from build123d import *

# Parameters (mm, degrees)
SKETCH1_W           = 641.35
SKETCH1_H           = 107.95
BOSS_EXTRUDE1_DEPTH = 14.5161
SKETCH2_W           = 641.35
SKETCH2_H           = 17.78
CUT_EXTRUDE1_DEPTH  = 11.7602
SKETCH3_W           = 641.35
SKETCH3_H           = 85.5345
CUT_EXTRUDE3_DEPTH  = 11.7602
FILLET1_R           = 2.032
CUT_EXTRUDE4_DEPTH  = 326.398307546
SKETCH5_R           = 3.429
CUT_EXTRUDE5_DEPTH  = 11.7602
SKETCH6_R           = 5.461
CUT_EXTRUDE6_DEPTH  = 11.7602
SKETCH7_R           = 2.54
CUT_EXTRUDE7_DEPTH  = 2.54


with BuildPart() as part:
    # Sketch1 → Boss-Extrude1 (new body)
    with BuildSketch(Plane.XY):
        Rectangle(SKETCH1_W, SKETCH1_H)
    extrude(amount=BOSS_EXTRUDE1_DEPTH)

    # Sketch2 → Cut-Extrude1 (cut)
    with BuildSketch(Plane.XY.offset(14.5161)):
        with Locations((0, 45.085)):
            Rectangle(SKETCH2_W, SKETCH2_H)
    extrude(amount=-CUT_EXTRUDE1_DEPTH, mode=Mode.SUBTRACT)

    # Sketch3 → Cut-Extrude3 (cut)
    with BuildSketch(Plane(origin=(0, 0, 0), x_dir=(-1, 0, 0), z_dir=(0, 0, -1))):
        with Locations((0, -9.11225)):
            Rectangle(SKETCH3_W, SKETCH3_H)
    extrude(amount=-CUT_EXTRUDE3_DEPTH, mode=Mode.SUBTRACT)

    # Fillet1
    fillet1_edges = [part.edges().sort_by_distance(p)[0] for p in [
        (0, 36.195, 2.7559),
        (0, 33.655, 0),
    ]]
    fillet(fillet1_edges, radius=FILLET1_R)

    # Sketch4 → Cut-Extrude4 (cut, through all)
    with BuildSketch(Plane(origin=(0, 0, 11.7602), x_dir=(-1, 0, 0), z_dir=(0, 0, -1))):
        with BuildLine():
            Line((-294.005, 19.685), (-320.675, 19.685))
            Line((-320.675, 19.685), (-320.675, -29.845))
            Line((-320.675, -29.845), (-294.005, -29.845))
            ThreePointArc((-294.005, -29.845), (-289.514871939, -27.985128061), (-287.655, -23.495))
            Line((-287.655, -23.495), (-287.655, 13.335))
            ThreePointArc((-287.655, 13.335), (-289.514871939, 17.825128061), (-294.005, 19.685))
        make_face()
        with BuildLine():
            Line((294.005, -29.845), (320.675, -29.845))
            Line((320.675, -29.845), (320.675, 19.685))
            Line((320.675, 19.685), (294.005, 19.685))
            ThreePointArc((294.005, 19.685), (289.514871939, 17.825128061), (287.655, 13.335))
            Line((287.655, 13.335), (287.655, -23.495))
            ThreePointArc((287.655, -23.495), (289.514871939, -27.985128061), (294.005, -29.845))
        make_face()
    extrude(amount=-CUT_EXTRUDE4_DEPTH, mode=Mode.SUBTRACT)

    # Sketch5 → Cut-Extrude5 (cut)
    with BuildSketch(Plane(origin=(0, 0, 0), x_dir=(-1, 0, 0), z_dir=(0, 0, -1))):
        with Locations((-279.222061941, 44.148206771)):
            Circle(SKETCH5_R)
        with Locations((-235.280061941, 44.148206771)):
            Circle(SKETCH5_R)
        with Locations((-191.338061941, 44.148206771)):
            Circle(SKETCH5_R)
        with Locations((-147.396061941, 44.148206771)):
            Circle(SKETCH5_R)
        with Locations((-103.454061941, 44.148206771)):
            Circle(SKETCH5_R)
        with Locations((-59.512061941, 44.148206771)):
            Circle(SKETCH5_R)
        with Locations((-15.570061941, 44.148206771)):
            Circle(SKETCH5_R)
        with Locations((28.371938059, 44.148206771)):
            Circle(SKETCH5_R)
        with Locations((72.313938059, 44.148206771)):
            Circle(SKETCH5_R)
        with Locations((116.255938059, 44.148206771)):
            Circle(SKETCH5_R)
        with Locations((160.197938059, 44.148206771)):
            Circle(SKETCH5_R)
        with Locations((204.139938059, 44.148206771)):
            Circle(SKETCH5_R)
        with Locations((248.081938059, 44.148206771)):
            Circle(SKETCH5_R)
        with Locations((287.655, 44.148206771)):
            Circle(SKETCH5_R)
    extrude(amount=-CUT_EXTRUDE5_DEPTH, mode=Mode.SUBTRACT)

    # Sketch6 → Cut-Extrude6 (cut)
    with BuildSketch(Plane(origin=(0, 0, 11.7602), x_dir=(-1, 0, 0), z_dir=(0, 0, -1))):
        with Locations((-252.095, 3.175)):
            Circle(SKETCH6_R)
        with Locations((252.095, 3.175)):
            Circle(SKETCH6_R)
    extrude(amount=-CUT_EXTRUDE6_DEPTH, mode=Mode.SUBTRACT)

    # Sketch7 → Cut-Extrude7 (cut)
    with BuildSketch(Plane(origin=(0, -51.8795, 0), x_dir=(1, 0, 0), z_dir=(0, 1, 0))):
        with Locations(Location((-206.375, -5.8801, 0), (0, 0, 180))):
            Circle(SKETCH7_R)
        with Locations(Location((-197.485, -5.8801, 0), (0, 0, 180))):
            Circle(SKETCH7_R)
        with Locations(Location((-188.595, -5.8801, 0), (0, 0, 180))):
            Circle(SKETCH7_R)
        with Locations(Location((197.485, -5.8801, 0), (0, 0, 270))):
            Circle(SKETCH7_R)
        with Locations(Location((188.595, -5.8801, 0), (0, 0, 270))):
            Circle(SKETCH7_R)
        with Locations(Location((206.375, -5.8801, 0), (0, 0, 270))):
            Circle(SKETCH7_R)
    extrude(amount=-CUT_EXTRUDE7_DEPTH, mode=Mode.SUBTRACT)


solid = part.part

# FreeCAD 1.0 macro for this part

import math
import FreeCAD as App
import Part
import Sketcher
Q = App.Units.Quantity


def edges_at(feature, points):
    """Names of the edges that pass closest to the given points."""
    edges = feature.Shape.Edges
    near = lambda p: min(range(len(edges)), key=lambda i: edges[i].distToShape(Part.Vertex(*p))[0])
    return sorted({f"Edge{near(p) + 1}" for p in points})

doc = App.newDocument("Part")
params = doc.addObject("Spreadsheet::Sheet", "Params")
for row, (alias, value) in enumerate([
    ("sketch1_width", "25.25 in"),
    ("sketch1_height", "4.25 in"),
    ("pad1_length", "0.5715 in"),
    ("sketch2_height", "0.7 in"),
    ("sketch2_width", "25.25 in"),
    ("pocket1_length", "0.463 in"),
    ("sketch3_width", "25.25 in"),
    ("pocket2_length", "0.463 in"),
    ("fillet_radius", "0.08 in"),
    ("sketch4_radius", "0.25 in"),
    ("sketch4_width", "1.05 in"),
    ("sketch4_height", "1.95 in"),
    ("sketch5_diameter", "0.27 in"),
    ("pocket4_length", "0.463 in"),
    ("sketch6_diameter", "0.43 in"),
    ("pocket5_length", "0.463 in"),
    ("sketch7_diameter", "0.2 in"),
    ("pocket6_length", "0.1 in"),
], start=1):
    params.set(f"A{row}", alias)
    params.set(f"B{row}", "=" + value)
    params.setAlias(f"B{row}", alias)

body = doc.addObject("PartDesign::Body", "Body")

sketch1 = doc.addObject("Sketcher::SketchObject", "Sketch")
body.addObject(sketch1)
sketch1.AttachmentSupport = (doc.XY_Plane, [""])
sketch1.MapMode = "FlatFace"
sketch1.addGeometry([
    Part.LineSegment(App.Vector(-321, 54, 0), App.Vector(-321, -54, 0)),
    Part.LineSegment(App.Vector(-321, -54, 0), App.Vector(321, -54, 0)),
    Part.LineSegment(App.Vector(321, -54, 0), App.Vector(321, 54, 0)),
    Part.LineSegment(App.Vector(321, 54, 0), App.Vector(-321, 54, 0)),
], False)
sketch1.addConstraint([
    Sketcher.Constraint("Coincident", 0, 2, 1, 1),
    Sketcher.Constraint("Coincident", 1, 2, 2, 1),
    Sketcher.Constraint("Coincident", 2, 2, 3, 1),
    Sketcher.Constraint("Coincident", 3, 2, 0, 1),
    Sketcher.Constraint("Vertical", 0),
    Sketcher.Constraint("Horizontal", 1),
    Sketcher.Constraint("Vertical", 2),
    Sketcher.Constraint("Horizontal", 3),
    Sketcher.Constraint("Symmetric", 0, 2, 2, 2, -1, 1),
    Sketcher.Constraint("DistanceX", 1, 1, 1, 2, Q("25.25 in")),
    Sketcher.Constraint("DistanceY", 0, 2, 0, 1, Q("4.25 in")),
])
sketch1.setExpression("Constraints[9]", "Params.sketch1_width")
sketch1.setExpression("Constraints[10]", "Params.sketch1_height")
pad1 = doc.addObject("PartDesign::Pad", "Pad")
body.addObject(pad1)
pad1.Profile = sketch1
pad1.setExpression("Length", "Params.pad1_length")

sketch2 = doc.addObject("Sketcher::SketchObject", "Sketch001")
body.addObject(sketch2)
sketch2.AttachmentSupport = (doc.XY_Plane, [""])
sketch2.MapMode = "FlatFace"
sketch2.AttachmentOffset = App.Placement(App.Vector(0, 0, 0.5715 * 25.4), App.Rotation())
sketch2.addGeometry([
    Part.LineSegment(App.Vector(-321, 54, 0), App.Vector(-321, 36, 0)),
    Part.LineSegment(App.Vector(-321, 36, 0), App.Vector(321, 36, 0)),
    Part.LineSegment(App.Vector(321, 36, 0), App.Vector(321, 54, 0)),
    Part.LineSegment(App.Vector(321, 54, 0), App.Vector(-321, 54, 0)),
], False)
sketch2.addConstraint([
    Sketcher.Constraint("Coincident", 0, 2, 1, 1),
    Sketcher.Constraint("Coincident", 1, 2, 2, 1),
    Sketcher.Constraint("Coincident", 2, 2, 3, 1),
    Sketcher.Constraint("Coincident", 3, 2, 0, 1),
    Sketcher.Constraint("Vertical", 0),
    Sketcher.Constraint("Horizontal", 1),
    Sketcher.Constraint("Vertical", 2),
    Sketcher.Constraint("Horizontal", 3),
    Sketcher.Constraint("DistanceY", 0, 2, 0, 1, Q("0.7 in")),
    Sketcher.Constraint("DistanceX", 1, 1, 1, 2, Q("25.25 in")),
    Sketcher.Constraint("DistanceX", 0, 2, -1, 1, Q("12.625 in")),
    Sketcher.Constraint("DistanceY", -1, 1, 0, 2, Q("1.425 in")),
])
sketch2.setExpression("Constraints[8]", "Params.sketch2_height")
sketch2.setExpression("Constraints[9]", "Params.sketch2_width")
pocket1 = doc.addObject("PartDesign::Pocket", "Pocket")
body.addObject(pocket1)
pocket1.Profile = sketch2
pocket1.setExpression("Length", "Params.pocket1_length")

sketch3 = doc.addObject("Sketcher::SketchObject", "Sketch002")
body.addObject(sketch3)
sketch3.AttachmentSupport = (doc.XY_Plane, [""])
sketch3.MapMode = "FlatFace"
sketch3.addGeometry([
    Part.LineSegment(App.Vector(321, 34, 0), App.Vector(321, -52, 0)),
    Part.LineSegment(App.Vector(321, -52, 0), App.Vector(-321, -52, 0)),
    Part.LineSegment(App.Vector(-321, -52, 0), App.Vector(-321, 34, 0)),
    Part.LineSegment(App.Vector(-321, 34, 0), App.Vector(321, 34, 0)),
], False)
sketch3.addConstraint([
    Sketcher.Constraint("Coincident", 0, 2, 1, 1),
    Sketcher.Constraint("Coincident", 1, 2, 2, 1),
    Sketcher.Constraint("Coincident", 2, 2, 3, 1),
    Sketcher.Constraint("Coincident", 3, 2, 0, 1),
    Sketcher.Constraint("Vertical", 0),
    Sketcher.Constraint("Horizontal", 1),
    Sketcher.Constraint("Vertical", 2),
    Sketcher.Constraint("Horizontal", 3),
    Sketcher.Constraint("DistanceX", 1, 2, 1, 1, Q("25.25 in")),
    Sketcher.Constraint("DistanceY", 0, 2, 0, 1, Q("3.3675 in")),
    Sketcher.Constraint("DistanceX", -1, 1, 0, 2, Q("12.625 in")),
    Sketcher.Constraint("DistanceY", -1, 1, 2, 2, Q("1.325 in")),
])
sketch3.setExpression("Constraints[8]", "Params.sketch3_width")
pocket2 = doc.addObject("PartDesign::Pocket", "Pocket001")
body.addObject(pocket2)
pocket2.Profile = sketch3
pocket2.setExpression("Length", "Params.pocket2_length")
pocket2.Reversed = True
doc.recompute()

fillet = doc.addObject("PartDesign::Fillet", "Fillet")
body.addObject(fillet)
fillet.Base = (pocket2, edges_at(pocket2, [(0, 36.195, 2.756), (0, 33.655, 0)]))
fillet.setExpression("Radius", "Params.fillet_radius")

sketch4 = doc.addObject("Sketcher::SketchObject", "Sketch003")
body.addObject(sketch4)
sketch4.AttachmentSupport = (doc.XY_Plane, [""])
sketch4.MapMode = "FlatFace"
sketch4.AttachmentOffset = App.Placement(App.Vector(0, 0, 0.463 * 25.4), App.Rotation())
sketch4.addGeometry([
    Part.LineSegment(App.Vector(294, 20, 0), App.Vector(321, 20, 0)),
    Part.LineSegment(App.Vector(321, 20, 0), App.Vector(321, -30, 0)),
    Part.LineSegment(App.Vector(321, -30, 0), App.Vector(294, -30, 0)),
    Part.ArcOfCircle(Part.Circle(App.Vector(294, -23, 0), App.Vector(0, 0, 1), 6), math.radians(180), math.radians(270)),
    Part.LineSegment(App.Vector(288, -23, 0), App.Vector(288, 13, 0)),
    Part.ArcOfCircle(Part.Circle(App.Vector(294, 13, 0), App.Vector(0, 0, 1), 6), math.radians(90), math.radians(180)),
    Part.LineSegment(App.Vector(-294, -30, 0), App.Vector(-321, -30, 0)),
    Part.LineSegment(App.Vector(-321, -30, 0), App.Vector(-321, 20, 0)),
    Part.LineSegment(App.Vector(-321, 20, 0), App.Vector(-294, 20, 0)),
    Part.ArcOfCircle(Part.Circle(App.Vector(-294, 13, 0), App.Vector(0, 0, 1), 6), math.radians(0), math.radians(90)),
    Part.LineSegment(App.Vector(-288, 13, 0), App.Vector(-288, -23, 0)),
    Part.ArcOfCircle(Part.Circle(App.Vector(-294, -23, 0), App.Vector(0, 0, 1), 6), math.radians(-90), math.radians(0)),
], False)
sketch4.addConstraint([
    Sketcher.Constraint("Coincident", 0, 2, 1, 1),
    Sketcher.Constraint("Coincident", 1, 2, 2, 1),
    Sketcher.Constraint("Tangent", 2, 2, 3, 2),
    Sketcher.Constraint("Tangent", 3, 1, 4, 1),
    Sketcher.Constraint("Tangent", 4, 2, 5, 2),
    Sketcher.Constraint("Tangent", 5, 1, 0, 1),
    Sketcher.Constraint("Coincident", 6, 2, 7, 1),
    Sketcher.Constraint("Coincident", 7, 2, 8, 1),
    Sketcher.Constraint("Tangent", 8, 2, 9, 2),
    Sketcher.Constraint("Tangent", 9, 1, 10, 1),
    Sketcher.Constraint("Tangent", 10, 2, 11, 2),
    Sketcher.Constraint("Tangent", 11, 1, 6, 1),
    Sketcher.Constraint("Horizontal", 0),
    Sketcher.Constraint("Vertical", 1),
    Sketcher.Constraint("Horizontal", 2),
    Sketcher.Constraint("Vertical", 4),
    Sketcher.Constraint("Horizontal", 6),
    Sketcher.Constraint("Vertical", 7),
    Sketcher.Constraint("Horizontal", 8),
    Sketcher.Constraint("Vertical", 10),
    Sketcher.Constraint("Equal", 3, 5),
    Sketcher.Constraint("Equal", 5, 9),
    Sketcher.Constraint("Equal", 9, 11),
    Sketcher.Constraint("Symmetric", 5, 3, 9, 3, -2),
    Sketcher.Constraint("Symmetric", 1, 2, 6, 2, -2),
    Sketcher.Constraint("Radius", 3, Q("0.25 in")),
    Sketcher.Constraint("DistanceX", 0, 1, 0, 2, Q("1.05 in")),
    Sketcher.Constraint("DistanceY", 1, 2, 1, 1, Q("1.95 in")),
    Sketcher.Constraint("DistanceX", 9, 3, 0, 2, Q("24.2 in")),
    Sketcher.Constraint("DistanceY", 3, 3, -1, 1, Q("0.925 in")),
])
sketch4.setExpression("Constraints[25]", "Params.sketch4_radius")
sketch4.setExpression("Constraints[26]", "Params.sketch4_width")
sketch4.setExpression("Constraints[27]", "Params.sketch4_height")
pocket3 = doc.addObject("PartDesign::Pocket", "Pocket002")
body.addObject(pocket3)
pocket3.Profile = sketch4
pocket3.Type = "ThroughAll"
pocket3.Reversed = True

sketch5 = doc.addObject("Sketcher::SketchObject", "Sketch004")
body.addObject(sketch5)
sketch5.AttachmentSupport = (doc.XY_Plane, [""])
sketch5.MapMode = "FlatFace"
sketch5.addGeometry([
    Part.Circle(App.Vector(279.2, 44.1, 0), App.Vector(0, 0, 1), 3.4),
    Part.Circle(App.Vector(235.3, 44.1, 0), App.Vector(0, 0, 1), 3.4),
    Part.Circle(App.Vector(191.3, 44.1, 0), App.Vector(0, 0, 1), 3.4),
    Part.Circle(App.Vector(147.4, 44.1, 0), App.Vector(0, 0, 1), 3.4),
    Part.Circle(App.Vector(103.5, 44.1, 0), App.Vector(0, 0, 1), 3.4),
    Part.Circle(App.Vector(59.5, 44.1, 0), App.Vector(0, 0, 1), 3.4),
    Part.Circle(App.Vector(15.6, 44.1, 0), App.Vector(0, 0, 1), 3.4),
    Part.Circle(App.Vector(-28.4, 44.1, 0), App.Vector(0, 0, 1), 3.4),
    Part.Circle(App.Vector(-72.3, 44.1, 0), App.Vector(0, 0, 1), 3.4),
    Part.Circle(App.Vector(-116.3, 44.1, 0), App.Vector(0, 0, 1), 3.4),
    Part.Circle(App.Vector(-160.2, 44.1, 0), App.Vector(0, 0, 1), 3.4),
    Part.Circle(App.Vector(-204.1, 44.1, 0), App.Vector(0, 0, 1), 3.4),
    Part.Circle(App.Vector(-248.1, 44.1, 0), App.Vector(0, 0, 1), 3.4),
    Part.Circle(App.Vector(-287.7, 44.1, 0), App.Vector(0, 0, 1), 3.4),
], False)
sketch5.addConstraint([
    Sketcher.Constraint("Equal", 0, 1),
    Sketcher.Constraint("Equal", 1, 2),
    Sketcher.Constraint("Equal", 2, 3),
    Sketcher.Constraint("Equal", 3, 4),
    Sketcher.Constraint("Equal", 4, 5),
    Sketcher.Constraint("Equal", 5, 6),
    Sketcher.Constraint("Equal", 6, 7),
    Sketcher.Constraint("Equal", 7, 8),
    Sketcher.Constraint("Equal", 8, 9),
    Sketcher.Constraint("Equal", 9, 10),
    Sketcher.Constraint("Equal", 10, 11),
    Sketcher.Constraint("Equal", 11, 12),
    Sketcher.Constraint("Equal", 12, 13),
    Sketcher.Constraint("Horizontal", 0, 3, 1, 3),
    Sketcher.Constraint("Horizontal", 1, 3, 2, 3),
    Sketcher.Constraint("Horizontal", 2, 3, 3, 3),
    Sketcher.Constraint("Horizontal", 3, 3, 4, 3),
    Sketcher.Constraint("Horizontal", 4, 3, 5, 3),
    Sketcher.Constraint("Horizontal", 5, 3, 6, 3),
    Sketcher.Constraint("Horizontal", 6, 3, 7, 3),
    Sketcher.Constraint("Horizontal", 7, 3, 8, 3),
    Sketcher.Constraint("Horizontal", 8, 3, 9, 3),
    Sketcher.Constraint("Horizontal", 9, 3, 10, 3),
    Sketcher.Constraint("Horizontal", 10, 3, 11, 3),
    Sketcher.Constraint("Horizontal", 11, 3, 12, 3),
    Sketcher.Constraint("Horizontal", 12, 3, 13, 3),
    Sketcher.Constraint("Diameter", 0, Q("0.27 in")),
    Sketcher.Constraint("DistanceX", 1, 3, 0, 3, Q("1.73 in")),
    Sketcher.Constraint("DistanceX", 2, 3, 1, 3, Q("1.73 in")),
    Sketcher.Constraint("DistanceX", 3, 3, 2, 3, Q("1.73 in")),
    Sketcher.Constraint("DistanceX", 4, 3, 3, 3, Q("1.73 in")),
    Sketcher.Constraint("DistanceX", 5, 3, 4, 3, Q("1.73 in")),
    Sketcher.Constraint("DistanceX", 6, 3, 5, 3, Q("1.73 in")),
    Sketcher.Constraint("DistanceX", 7, 3, 6, 3, Q("1.73 in")),
    Sketcher.Constraint("DistanceX", 8, 3, 7, 3, Q("1.73 in")),
    Sketcher.Constraint("DistanceX", 9, 3, 8, 3, Q("1.73 in")),
    Sketcher.Constraint("DistanceX", 10, 3, 9, 3, Q("1.73 in")),
    Sketcher.Constraint("DistanceX", 11, 3, 10, 3, Q("1.73 in")),
    Sketcher.Constraint("DistanceX", 12, 3, 11, 3, Q("1.73 in")),
    Sketcher.Constraint("DistanceX", 13, 3, -1, 1, Q("11.325 in")),
    Sketcher.Constraint("DistanceX", -1, 1, 0, 3, Q("279.222062 mm")),
    Sketcher.Constraint("DistanceY", -1, 1, 0, 3, Q("44.148207 mm")),
])
sketch5.setExpression("Constraints[26]", "Params.sketch5_diameter")
pocket4 = doc.addObject("PartDesign::Pocket", "Pocket003")
body.addObject(pocket4)
pocket4.Profile = sketch5
pocket4.setExpression("Length", "Params.pocket4_length")
pocket4.Reversed = True

sketch6 = doc.addObject("Sketcher::SketchObject", "Sketch005")
body.addObject(sketch6)
sketch6.AttachmentSupport = (doc.XY_Plane, [""])
sketch6.MapMode = "FlatFace"
sketch6.AttachmentOffset = App.Placement(App.Vector(0, 0, 0.463 * 25.4), App.Rotation())
sketch6.addGeometry([
    Part.Circle(App.Vector(252, 3, 0), App.Vector(0, 0, 1), 5),
    Part.Circle(App.Vector(-252, 3, 0), App.Vector(0, 0, 1), 5),
], False)
sketch6.addConstraint([
    Sketcher.Constraint("Equal", 0, 1),
    Sketcher.Constraint("Symmetric", 0, 3, 1, 3, -2),
    Sketcher.Constraint("Diameter", 0, Q("0.43 in")),
    Sketcher.Constraint("DistanceX", 1, 3, 0, 3, Q("19.85 in")),
    Sketcher.Constraint("DistanceY", -1, 1, 0, 3, Q("0.125 in")),
])
sketch6.setExpression("Constraints[2]", "Params.sketch6_diameter")
pocket5 = doc.addObject("PartDesign::Pocket", "Pocket004")
body.addObject(pocket5)
pocket5.Profile = sketch6
pocket5.setExpression("Length", "Params.pocket5_length")
pocket5.Reversed = True

sketch7 = doc.addObject("Sketcher::SketchObject", "Sketch006")
body.addObject(sketch7)
sketch7.AttachmentSupport = (doc.XZ_Plane, [""])
sketch7.MapMode = "FlatFace"
sketch7.AttachmentOffset = App.Placement(App.Vector(0, 0, 2.0425 * 25.4), App.Rotation())
sketch7.addGeometry([
    Part.Circle(App.Vector(-206.4, 5.9, 0), App.Vector(0, 0, 1), 2.5),
    Part.Circle(App.Vector(-197.5, 5.9, 0), App.Vector(0, 0, 1), 2.5),
    Part.Circle(App.Vector(-188.6, 5.9, 0), App.Vector(0, 0, 1), 2.5),
    Part.Circle(App.Vector(197.5, 5.9, 0), App.Vector(0, 0, 1), 2.5),
    Part.Circle(App.Vector(188.6, 5.9, 0), App.Vector(0, 0, 1), 2.5),
    Part.Circle(App.Vector(206.4, 5.9, 0), App.Vector(0, 0, 1), 2.5),
], False)
sketch7.addConstraint([
    Sketcher.Constraint("Equal", 0, 1),
    Sketcher.Constraint("Equal", 1, 2),
    Sketcher.Constraint("Equal", 2, 3),
    Sketcher.Constraint("Equal", 3, 4),
    Sketcher.Constraint("Equal", 4, 5),
    Sketcher.Constraint("Symmetric", 1, 3, 3, 3, -2),
    Sketcher.Constraint("Symmetric", 2, 3, 4, 3, -2),
    Sketcher.Constraint("Symmetric", 0, 3, 5, 3, -2),
    Sketcher.Constraint("Horizontal", 0, 3, 1, 3),
    Sketcher.Constraint("Horizontal", 1, 3, 2, 3),
    Sketcher.Constraint("Diameter", 0, Q("0.2 in")),
    Sketcher.Constraint("DistanceX", 0, 3, 2, 3, Q("0.7 in")),
    Sketcher.Constraint("DistanceX", 2, 3, 3, 3, Q("15.2 in")),
    Sketcher.Constraint("DistanceX", 0, 3, 1, 3, Q("0.35 in")),
    Sketcher.Constraint("DistanceY", -1, 1, 0, 3, Q("0.2315 in")),
])
sketch7.setExpression("Constraints[10]", "Params.sketch7_diameter")
pocket6 = doc.addObject("PartDesign::Pocket", "Pocket005")
body.addObject(pocket6)
pocket6.Profile = sketch7
pocket6.setExpression("Length", "Params.pocket6_length")
pocket6.Reversed = True

doc.recompute()
